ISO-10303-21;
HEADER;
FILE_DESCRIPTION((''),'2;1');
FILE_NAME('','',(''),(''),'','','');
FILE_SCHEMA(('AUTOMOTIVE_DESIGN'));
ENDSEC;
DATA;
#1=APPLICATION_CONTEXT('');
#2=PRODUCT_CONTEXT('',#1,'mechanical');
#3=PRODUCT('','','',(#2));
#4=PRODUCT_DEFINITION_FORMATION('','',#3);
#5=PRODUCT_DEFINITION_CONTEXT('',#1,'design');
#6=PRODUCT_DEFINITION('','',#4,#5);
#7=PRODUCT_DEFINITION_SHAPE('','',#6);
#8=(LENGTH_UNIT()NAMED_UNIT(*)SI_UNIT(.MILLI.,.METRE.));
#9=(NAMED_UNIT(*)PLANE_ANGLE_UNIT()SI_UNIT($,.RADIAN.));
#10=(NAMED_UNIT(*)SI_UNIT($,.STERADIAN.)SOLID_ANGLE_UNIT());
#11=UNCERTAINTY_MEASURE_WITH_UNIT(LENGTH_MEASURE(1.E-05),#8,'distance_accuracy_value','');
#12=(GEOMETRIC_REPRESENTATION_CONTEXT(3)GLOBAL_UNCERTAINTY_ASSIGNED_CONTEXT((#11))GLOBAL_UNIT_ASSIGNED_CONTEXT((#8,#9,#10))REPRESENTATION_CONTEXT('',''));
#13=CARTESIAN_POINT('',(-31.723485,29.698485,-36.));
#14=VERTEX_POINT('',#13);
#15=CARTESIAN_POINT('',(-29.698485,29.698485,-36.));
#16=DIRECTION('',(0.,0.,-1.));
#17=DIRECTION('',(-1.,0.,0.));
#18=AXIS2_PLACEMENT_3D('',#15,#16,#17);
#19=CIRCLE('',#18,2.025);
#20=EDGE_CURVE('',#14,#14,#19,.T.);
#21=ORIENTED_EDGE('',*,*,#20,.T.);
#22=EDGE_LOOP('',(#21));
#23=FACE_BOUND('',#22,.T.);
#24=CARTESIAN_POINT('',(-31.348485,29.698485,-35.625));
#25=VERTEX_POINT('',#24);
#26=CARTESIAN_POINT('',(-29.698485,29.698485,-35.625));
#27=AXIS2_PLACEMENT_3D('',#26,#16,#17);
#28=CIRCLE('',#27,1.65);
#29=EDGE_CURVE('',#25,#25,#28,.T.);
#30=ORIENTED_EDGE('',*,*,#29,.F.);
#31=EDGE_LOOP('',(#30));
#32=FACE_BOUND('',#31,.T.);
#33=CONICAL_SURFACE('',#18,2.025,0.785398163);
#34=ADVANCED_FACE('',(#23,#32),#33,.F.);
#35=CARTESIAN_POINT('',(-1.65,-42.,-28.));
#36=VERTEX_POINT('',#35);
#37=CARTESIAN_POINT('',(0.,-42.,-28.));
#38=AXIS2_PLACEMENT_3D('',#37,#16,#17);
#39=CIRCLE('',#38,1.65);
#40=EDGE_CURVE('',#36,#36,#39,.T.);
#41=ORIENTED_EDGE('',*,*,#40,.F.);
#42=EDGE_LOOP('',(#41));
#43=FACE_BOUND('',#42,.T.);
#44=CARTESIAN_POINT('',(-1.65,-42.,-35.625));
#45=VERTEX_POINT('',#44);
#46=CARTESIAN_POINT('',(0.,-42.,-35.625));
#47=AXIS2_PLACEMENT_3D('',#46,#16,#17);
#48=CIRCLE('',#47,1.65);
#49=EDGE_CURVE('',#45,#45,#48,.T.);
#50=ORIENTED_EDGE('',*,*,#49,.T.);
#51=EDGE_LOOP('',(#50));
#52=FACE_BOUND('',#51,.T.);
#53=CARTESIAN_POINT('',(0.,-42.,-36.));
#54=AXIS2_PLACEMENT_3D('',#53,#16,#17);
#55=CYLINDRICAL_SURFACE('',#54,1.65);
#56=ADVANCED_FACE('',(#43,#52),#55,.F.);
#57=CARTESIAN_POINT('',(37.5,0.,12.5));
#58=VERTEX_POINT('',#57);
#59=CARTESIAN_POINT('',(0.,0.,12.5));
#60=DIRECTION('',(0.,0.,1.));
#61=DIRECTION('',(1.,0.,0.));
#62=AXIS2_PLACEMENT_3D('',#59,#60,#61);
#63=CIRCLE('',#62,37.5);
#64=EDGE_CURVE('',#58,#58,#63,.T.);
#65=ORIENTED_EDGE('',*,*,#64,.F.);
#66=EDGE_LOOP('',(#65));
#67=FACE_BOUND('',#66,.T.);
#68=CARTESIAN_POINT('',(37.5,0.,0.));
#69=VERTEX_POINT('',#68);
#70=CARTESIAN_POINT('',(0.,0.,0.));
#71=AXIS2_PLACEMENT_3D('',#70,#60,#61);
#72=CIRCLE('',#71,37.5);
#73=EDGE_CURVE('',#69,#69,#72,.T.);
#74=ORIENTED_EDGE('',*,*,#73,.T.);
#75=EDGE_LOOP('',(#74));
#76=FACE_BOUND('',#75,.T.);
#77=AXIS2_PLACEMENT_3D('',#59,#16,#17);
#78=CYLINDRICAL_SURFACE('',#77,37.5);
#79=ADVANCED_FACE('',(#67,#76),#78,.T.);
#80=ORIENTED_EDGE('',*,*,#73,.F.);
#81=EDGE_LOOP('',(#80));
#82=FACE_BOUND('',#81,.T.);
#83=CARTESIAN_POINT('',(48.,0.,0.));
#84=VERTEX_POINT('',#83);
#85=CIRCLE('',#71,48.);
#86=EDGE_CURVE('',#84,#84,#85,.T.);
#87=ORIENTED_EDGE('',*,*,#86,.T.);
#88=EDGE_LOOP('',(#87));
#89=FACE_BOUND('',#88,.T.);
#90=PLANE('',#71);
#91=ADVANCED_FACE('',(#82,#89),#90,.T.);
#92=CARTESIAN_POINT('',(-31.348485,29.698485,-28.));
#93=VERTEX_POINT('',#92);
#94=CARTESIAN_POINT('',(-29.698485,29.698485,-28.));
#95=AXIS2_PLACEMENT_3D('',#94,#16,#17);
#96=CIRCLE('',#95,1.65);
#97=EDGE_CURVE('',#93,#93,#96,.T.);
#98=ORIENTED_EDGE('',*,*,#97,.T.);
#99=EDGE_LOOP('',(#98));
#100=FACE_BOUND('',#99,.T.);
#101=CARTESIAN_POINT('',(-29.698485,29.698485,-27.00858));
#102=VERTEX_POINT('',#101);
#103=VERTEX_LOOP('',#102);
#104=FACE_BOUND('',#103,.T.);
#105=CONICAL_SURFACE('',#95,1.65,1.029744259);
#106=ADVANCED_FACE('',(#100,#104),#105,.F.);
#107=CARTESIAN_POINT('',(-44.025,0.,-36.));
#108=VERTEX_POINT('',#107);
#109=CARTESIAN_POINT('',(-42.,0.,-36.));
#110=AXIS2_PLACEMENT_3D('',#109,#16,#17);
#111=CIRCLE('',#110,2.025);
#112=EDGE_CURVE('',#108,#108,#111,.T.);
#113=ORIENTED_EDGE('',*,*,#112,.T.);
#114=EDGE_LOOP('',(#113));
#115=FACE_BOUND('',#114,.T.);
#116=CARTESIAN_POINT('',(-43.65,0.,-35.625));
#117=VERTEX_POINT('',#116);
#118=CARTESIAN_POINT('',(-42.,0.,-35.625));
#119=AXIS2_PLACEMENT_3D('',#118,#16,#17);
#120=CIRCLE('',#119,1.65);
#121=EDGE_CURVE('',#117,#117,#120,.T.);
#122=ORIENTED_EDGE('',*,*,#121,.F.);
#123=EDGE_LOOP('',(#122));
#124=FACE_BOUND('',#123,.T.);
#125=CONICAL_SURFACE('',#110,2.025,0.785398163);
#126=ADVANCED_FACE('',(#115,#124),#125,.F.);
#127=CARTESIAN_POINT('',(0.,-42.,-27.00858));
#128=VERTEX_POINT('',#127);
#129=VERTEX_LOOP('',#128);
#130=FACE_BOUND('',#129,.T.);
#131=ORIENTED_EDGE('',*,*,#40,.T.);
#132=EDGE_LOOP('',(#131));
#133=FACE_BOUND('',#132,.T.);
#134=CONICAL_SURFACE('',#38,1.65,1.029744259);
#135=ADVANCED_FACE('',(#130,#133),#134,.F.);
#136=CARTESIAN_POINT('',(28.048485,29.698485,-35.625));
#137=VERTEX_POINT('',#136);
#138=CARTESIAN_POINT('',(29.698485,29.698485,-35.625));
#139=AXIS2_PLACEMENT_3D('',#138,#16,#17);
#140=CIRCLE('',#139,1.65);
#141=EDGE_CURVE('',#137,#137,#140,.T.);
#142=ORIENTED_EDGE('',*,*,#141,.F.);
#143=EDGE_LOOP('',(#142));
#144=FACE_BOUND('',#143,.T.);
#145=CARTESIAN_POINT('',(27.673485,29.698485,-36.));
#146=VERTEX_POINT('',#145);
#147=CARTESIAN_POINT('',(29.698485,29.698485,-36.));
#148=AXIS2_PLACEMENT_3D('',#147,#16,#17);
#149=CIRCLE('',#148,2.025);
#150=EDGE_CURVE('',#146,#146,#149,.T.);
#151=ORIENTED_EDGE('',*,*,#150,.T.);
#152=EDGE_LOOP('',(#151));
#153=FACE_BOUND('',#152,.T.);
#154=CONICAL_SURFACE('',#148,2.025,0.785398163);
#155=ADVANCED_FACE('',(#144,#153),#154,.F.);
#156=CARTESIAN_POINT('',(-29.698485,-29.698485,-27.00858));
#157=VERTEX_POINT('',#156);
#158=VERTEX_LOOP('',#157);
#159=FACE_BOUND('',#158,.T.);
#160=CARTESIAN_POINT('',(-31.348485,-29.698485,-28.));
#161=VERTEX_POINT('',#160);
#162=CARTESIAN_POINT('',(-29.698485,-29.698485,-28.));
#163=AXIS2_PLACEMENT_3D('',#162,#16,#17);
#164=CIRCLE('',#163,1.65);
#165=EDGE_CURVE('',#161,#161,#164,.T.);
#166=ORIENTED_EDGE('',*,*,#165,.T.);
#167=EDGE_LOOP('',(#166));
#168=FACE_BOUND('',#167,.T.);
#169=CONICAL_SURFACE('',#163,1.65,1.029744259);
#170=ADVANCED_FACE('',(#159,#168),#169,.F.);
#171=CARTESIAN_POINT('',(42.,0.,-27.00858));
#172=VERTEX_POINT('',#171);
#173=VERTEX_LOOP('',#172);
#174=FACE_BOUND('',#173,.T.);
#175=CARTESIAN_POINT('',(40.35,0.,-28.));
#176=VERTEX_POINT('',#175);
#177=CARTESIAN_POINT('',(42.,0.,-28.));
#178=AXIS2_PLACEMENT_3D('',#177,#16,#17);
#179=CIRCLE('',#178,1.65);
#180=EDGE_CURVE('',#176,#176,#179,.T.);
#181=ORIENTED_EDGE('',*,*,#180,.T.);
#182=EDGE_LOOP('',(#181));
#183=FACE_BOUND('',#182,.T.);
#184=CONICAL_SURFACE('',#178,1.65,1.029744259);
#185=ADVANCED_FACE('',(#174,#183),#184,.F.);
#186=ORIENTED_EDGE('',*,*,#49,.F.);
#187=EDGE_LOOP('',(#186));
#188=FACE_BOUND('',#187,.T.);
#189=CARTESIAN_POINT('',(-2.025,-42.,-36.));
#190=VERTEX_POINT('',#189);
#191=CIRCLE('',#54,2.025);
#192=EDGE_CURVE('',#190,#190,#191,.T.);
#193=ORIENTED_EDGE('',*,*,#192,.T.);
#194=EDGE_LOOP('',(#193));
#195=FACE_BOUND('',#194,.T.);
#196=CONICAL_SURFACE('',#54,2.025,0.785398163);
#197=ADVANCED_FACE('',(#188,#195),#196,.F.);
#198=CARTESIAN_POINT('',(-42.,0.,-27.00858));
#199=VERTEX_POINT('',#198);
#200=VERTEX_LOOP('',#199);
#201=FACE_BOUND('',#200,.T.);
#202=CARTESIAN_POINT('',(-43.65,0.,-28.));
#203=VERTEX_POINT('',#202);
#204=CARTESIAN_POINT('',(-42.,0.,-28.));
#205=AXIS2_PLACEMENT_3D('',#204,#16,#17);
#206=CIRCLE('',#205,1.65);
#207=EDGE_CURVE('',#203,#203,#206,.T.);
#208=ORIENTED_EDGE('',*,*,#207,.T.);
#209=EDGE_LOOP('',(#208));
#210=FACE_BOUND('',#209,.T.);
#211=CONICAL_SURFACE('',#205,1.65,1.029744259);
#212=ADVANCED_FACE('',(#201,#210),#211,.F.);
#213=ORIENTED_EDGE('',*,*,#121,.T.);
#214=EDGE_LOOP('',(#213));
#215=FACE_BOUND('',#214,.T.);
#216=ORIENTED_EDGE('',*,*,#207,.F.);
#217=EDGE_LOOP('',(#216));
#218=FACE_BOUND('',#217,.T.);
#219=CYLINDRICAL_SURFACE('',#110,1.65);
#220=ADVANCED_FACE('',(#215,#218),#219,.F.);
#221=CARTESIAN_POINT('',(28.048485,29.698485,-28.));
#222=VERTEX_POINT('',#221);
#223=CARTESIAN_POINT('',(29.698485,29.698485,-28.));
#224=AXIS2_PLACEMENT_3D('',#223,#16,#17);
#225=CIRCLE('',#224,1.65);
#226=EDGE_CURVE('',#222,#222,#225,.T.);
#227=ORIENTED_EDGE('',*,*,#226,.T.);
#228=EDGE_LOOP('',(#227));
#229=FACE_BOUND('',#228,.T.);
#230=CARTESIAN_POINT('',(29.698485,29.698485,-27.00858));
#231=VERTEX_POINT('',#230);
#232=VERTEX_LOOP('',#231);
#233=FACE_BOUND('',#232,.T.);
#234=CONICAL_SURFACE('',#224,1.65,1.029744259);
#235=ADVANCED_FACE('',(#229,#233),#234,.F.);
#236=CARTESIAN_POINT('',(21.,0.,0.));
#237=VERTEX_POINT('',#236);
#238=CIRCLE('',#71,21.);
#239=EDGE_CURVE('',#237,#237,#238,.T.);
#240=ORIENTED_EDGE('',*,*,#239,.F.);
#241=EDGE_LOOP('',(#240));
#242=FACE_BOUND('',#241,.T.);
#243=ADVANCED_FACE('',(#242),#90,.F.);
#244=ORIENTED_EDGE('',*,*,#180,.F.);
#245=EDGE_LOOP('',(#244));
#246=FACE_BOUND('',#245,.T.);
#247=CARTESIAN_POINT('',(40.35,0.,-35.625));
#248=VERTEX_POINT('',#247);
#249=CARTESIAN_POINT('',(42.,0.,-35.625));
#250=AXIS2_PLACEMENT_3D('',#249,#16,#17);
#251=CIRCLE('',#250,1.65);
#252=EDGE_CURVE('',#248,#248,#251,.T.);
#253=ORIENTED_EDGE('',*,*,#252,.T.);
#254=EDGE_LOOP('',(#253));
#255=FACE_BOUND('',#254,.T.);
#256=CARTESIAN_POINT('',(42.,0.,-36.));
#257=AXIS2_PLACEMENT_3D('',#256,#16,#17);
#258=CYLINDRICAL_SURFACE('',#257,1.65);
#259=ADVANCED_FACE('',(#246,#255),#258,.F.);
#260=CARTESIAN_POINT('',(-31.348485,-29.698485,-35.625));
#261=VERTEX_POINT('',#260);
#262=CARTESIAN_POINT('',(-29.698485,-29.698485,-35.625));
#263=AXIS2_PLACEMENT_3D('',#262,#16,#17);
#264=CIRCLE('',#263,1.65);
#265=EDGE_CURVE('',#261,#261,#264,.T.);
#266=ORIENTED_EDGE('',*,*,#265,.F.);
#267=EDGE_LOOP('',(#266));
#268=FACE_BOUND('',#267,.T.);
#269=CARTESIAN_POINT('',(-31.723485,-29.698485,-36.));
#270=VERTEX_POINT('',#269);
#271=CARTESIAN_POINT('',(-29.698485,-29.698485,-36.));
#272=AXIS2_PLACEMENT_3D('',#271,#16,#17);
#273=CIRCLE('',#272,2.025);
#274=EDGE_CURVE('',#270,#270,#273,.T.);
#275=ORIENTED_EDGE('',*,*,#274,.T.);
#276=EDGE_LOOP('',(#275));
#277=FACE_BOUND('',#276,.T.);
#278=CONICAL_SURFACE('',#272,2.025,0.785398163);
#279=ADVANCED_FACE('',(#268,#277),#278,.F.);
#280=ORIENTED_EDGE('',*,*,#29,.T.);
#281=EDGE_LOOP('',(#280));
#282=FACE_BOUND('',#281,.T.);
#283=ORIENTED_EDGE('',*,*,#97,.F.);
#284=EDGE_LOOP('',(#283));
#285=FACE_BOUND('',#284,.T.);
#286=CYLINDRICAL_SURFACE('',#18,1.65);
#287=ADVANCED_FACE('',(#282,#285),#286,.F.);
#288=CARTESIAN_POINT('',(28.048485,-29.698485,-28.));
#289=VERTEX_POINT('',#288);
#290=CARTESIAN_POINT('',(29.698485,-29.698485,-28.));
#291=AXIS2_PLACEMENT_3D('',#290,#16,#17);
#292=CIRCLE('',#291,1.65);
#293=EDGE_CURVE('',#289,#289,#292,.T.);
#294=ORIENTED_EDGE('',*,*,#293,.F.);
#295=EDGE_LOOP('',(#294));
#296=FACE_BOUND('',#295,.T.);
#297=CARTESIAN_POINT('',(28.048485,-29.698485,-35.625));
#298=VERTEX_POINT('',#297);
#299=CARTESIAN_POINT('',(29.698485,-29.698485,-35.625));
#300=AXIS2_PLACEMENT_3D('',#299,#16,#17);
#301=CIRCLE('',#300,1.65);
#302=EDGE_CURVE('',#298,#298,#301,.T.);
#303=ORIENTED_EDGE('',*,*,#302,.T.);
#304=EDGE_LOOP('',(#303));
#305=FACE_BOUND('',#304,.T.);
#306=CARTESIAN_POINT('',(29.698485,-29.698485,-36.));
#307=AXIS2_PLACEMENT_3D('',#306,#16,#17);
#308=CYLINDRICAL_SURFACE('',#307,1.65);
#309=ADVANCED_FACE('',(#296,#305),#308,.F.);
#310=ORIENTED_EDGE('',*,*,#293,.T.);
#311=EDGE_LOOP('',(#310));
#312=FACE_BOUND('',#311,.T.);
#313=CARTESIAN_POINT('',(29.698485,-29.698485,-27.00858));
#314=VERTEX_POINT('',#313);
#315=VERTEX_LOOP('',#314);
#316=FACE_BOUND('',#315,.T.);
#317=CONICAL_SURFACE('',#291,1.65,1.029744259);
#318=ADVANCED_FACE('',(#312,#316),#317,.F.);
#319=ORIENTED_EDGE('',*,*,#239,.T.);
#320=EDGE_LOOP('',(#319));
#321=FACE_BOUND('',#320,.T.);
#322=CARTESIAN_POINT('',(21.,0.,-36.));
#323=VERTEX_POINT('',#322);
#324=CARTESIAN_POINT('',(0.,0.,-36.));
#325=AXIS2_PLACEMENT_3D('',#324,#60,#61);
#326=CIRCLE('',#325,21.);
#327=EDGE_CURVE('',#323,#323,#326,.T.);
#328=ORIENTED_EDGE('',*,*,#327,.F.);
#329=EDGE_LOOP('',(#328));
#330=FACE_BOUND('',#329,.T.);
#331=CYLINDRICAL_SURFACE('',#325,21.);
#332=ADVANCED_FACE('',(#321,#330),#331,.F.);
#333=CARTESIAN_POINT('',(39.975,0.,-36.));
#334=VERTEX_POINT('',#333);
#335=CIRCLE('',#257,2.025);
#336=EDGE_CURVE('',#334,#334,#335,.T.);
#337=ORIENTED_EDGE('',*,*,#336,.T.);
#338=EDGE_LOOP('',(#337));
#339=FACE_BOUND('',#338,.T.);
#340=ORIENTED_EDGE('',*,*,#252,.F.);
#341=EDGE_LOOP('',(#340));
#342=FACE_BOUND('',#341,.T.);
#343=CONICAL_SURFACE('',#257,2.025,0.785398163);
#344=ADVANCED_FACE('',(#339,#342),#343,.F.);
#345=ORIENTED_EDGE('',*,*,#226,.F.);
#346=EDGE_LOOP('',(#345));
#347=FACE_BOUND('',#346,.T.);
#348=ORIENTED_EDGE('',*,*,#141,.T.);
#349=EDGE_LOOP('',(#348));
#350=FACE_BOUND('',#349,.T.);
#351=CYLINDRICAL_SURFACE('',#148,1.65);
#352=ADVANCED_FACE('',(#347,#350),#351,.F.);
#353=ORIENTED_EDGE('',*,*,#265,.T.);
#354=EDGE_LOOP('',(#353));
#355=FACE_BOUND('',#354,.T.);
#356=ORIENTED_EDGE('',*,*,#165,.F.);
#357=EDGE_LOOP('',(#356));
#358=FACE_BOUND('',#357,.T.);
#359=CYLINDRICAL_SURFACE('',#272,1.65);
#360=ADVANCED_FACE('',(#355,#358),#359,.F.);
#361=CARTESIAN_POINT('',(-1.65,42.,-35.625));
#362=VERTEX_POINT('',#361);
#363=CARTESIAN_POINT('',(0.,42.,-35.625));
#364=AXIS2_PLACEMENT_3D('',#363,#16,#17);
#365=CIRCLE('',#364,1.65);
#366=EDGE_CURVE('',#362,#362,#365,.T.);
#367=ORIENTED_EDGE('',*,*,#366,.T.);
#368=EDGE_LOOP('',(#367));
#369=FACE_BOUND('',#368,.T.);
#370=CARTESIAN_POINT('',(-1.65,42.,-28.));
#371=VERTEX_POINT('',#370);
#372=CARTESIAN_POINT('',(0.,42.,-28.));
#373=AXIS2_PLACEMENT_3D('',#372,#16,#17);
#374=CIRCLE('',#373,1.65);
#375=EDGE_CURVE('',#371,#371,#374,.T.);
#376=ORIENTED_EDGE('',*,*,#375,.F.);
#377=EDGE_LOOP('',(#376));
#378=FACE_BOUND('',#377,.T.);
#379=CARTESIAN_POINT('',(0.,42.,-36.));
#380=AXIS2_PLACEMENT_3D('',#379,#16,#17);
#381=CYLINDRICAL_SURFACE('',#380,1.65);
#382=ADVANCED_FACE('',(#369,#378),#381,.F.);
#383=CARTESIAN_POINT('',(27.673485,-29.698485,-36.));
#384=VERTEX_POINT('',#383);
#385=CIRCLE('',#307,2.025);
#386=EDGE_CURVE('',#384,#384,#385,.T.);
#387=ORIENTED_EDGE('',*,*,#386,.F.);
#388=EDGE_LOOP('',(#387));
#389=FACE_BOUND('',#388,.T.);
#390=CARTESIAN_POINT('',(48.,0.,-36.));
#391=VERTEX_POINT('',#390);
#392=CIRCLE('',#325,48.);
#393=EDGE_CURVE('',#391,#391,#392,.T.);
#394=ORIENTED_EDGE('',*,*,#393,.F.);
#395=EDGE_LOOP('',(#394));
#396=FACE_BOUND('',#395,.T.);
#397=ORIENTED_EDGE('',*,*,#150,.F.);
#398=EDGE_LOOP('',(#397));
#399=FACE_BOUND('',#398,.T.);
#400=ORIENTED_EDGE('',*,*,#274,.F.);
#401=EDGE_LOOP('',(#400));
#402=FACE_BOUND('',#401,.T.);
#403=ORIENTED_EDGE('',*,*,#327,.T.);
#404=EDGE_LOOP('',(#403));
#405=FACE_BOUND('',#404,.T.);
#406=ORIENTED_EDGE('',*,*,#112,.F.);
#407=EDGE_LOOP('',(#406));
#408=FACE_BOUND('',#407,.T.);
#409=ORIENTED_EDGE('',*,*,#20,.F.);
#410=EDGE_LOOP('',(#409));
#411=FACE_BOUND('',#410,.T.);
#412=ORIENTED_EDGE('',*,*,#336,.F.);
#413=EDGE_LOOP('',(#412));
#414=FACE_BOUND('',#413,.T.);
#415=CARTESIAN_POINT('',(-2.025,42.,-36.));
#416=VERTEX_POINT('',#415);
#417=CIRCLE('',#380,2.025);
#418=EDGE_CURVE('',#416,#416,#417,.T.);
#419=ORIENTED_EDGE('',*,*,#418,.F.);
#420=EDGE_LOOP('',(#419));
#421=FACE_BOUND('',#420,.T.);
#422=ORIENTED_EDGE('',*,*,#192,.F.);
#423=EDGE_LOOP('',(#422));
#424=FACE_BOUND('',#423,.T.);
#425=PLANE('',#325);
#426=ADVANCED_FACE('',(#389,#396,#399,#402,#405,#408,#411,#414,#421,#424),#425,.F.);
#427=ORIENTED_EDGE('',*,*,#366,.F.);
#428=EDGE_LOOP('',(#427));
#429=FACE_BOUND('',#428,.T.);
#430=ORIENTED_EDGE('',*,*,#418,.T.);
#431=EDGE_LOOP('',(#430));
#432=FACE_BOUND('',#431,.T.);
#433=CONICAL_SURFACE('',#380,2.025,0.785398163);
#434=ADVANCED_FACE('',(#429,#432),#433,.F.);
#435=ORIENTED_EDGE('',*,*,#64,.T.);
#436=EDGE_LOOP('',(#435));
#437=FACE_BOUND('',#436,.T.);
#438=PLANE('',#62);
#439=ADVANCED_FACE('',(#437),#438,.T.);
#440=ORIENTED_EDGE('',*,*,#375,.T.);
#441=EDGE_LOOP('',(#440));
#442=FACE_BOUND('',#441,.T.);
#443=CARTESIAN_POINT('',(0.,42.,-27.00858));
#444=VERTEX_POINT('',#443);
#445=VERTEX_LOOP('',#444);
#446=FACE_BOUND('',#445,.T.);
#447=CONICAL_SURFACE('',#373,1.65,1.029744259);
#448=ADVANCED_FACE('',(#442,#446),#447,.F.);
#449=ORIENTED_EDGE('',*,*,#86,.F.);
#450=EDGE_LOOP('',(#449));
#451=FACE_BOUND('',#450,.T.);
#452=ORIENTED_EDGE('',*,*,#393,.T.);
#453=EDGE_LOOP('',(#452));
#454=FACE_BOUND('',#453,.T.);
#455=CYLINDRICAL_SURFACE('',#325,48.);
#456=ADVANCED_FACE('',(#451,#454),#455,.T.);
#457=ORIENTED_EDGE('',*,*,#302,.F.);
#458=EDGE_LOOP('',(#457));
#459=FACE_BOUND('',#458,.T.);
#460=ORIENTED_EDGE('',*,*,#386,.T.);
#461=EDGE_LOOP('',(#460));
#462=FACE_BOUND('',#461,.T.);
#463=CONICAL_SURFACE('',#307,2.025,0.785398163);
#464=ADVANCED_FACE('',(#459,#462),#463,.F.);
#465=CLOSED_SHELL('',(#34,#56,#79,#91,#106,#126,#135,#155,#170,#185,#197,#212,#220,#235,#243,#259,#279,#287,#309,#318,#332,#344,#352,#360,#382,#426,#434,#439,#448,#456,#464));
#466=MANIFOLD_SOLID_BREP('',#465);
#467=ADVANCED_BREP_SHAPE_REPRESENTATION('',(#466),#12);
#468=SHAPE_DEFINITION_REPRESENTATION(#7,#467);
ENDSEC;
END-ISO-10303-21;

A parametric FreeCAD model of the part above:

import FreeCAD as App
import Part
import Sketcher

V = App.Vector
Q = App.Units.Quantity

doc = App.newDocument("Part")
body = doc.addObject("PartDesign::Body", "Body")

sketch1 = body.newObject("Sketcher::SketchObject", "Sketch")
sketch1.AttachmentSupport = (doc.getObject("XY_Plane"), [""])
sketch1.MapMode = "FlatFace"
sketch1.addGeometry(Part.Circle(V(0, 0, 0), V(0, 0, 1), 38), False)
sketch1.addConstraint([
    Sketcher.Constraint("Coincident", 0, 3, -1, 1),
    Sketcher.Constraint("Diameter", 0, Q("75 mm")),
])
pad1 = body.newObject("PartDesign::Pad", "Pad")
pad1.Profile = sketch1
pad1.Length = 12.5

sketch2 = body.newObject("Sketcher::SketchObject", "Sketch001")
sketch2.AttachmentSupport = (doc.getObject("XY_Plane"), [""])
sketch2.MapMode = "FlatFace"
sketch2.AttachmentOffset = App.Placement(V(0, 0, -36), App.Rotation())
sketch2.addGeometry([
    Part.Circle(V(0, 0, 0), V(0, 0, 1), 48),
    Part.Circle(V(0, 0, 0), V(0, 0, 1), 21),
], False)
sketch2.addConstraint([
    Sketcher.Constraint("Coincident", 0, 3, -1, 1),
    Sketcher.Constraint("Coincident", 1, 3, -1, 1),
    Sketcher.Constraint("Diameter", 0, Q("96 mm")),
    Sketcher.Constraint("Diameter", 1, Q("42 mm")),
])
pad2 = body.newObject("PartDesign::Pad", "Pad001")
pad2.Profile = sketch2
pad2.Length = 36

sketch3 = body.newObject("Sketcher::SketchObject", "Sketch002")
sketch3.AttachmentSupport = (doc.getObject("XY_Plane"), [""])
sketch3.MapMode = "FlatFace"
sketch3.AttachmentOffset = App.Placement(V(0, 0, -36), App.Rotation())
sketch3.addGeometry([
    Part.Circle(V(0, 42, 0), V(0, 0, 1), 1.6),
    Part.Circle(V(-29.7, 29.7, 0), V(0, 0, 1), 1.6),
    Part.Circle(V(-42, 0, 0), V(0, 0, 1), 1.6),
    Part.Circle(V(-29.7, -29.7, 0), V(0, 0, 1), 1.6),
    Part.Circle(V(0, -42, 0), V(0, 0, 1), 1.6),
    Part.Circle(V(29.7, -29.7, 0), V(0, 0, 1), 1.6),
    Part.Circle(V(42, 0, 0), V(0, 0, 1), 1.6),
    Part.Circle(V(29.7, 29.7, 0), V(0, 0, 1), 1.6),
], False)
sketch3.addConstraint([
    Sketcher.Constraint("Equal", 0, 1),
    Sketcher.Constraint("Equal", 1, 2),
    Sketcher.Constraint("Equal", 2, 3),
    Sketcher.Constraint("Equal", 3, 4),
    Sketcher.Constraint("Equal", 4, 5),
    Sketcher.Constraint("Equal", 5, 6),
    Sketcher.Constraint("Equal", 6, 7),
    Sketcher.Constraint("Symmetric", 0, 3, 4, 3, -1, 1),
    Sketcher.Constraint("Symmetric", 1, 3, 5, 3, -1, 1),
    Sketcher.Constraint("Symmetric", 2, 3, 6, 3, -1, 1),
    Sketcher.Constraint("Symmetric", 3, 3, 7, 3, -1, 1),
    Sketcher.Constraint("Symmetric", 3, 3, 5, 3, -2),
    Sketcher.Constraint("PointOnObject", 0, 3, -2),
    Sketcher.Constraint("PointOnObject", 2, 3, -1),
    Sketcher.Constraint("Diameter", 0, Q("3.3 mm")),
    Sketcher.Constraint("DistanceY", -1, 1, 0, 3, Q("42 mm")),
    Sketcher.Constraint("DistanceX", 2, 3, -1, 1, Q("42 mm")),
    Sketcher.Constraint("DistanceY", 3, 3, 1, 3, Q("59.39697 mm")),
    Sketcher.Constraint("DistanceX", 3, 3, 5, 3, Q("59.39697 mm")),
])
doc.recompute()
hole = body.newObject("PartDesign::Hole", "Hole")
hole.Profile = sketch3
hole.ThreadType = "None"
hole.Diameter = 3.3
hole.DepthType = "Dimension"
hole.Depth = 8
hole.DrillPoint = "Angled"
hole.DrillPointAngle = 118
hole.HoleCutType = "Countersink"
hole.HoleCutDiameter = 4.05
hole.HoleCutCountersinkAngle = 90
hole.Reversed = True

doc.recompute()
